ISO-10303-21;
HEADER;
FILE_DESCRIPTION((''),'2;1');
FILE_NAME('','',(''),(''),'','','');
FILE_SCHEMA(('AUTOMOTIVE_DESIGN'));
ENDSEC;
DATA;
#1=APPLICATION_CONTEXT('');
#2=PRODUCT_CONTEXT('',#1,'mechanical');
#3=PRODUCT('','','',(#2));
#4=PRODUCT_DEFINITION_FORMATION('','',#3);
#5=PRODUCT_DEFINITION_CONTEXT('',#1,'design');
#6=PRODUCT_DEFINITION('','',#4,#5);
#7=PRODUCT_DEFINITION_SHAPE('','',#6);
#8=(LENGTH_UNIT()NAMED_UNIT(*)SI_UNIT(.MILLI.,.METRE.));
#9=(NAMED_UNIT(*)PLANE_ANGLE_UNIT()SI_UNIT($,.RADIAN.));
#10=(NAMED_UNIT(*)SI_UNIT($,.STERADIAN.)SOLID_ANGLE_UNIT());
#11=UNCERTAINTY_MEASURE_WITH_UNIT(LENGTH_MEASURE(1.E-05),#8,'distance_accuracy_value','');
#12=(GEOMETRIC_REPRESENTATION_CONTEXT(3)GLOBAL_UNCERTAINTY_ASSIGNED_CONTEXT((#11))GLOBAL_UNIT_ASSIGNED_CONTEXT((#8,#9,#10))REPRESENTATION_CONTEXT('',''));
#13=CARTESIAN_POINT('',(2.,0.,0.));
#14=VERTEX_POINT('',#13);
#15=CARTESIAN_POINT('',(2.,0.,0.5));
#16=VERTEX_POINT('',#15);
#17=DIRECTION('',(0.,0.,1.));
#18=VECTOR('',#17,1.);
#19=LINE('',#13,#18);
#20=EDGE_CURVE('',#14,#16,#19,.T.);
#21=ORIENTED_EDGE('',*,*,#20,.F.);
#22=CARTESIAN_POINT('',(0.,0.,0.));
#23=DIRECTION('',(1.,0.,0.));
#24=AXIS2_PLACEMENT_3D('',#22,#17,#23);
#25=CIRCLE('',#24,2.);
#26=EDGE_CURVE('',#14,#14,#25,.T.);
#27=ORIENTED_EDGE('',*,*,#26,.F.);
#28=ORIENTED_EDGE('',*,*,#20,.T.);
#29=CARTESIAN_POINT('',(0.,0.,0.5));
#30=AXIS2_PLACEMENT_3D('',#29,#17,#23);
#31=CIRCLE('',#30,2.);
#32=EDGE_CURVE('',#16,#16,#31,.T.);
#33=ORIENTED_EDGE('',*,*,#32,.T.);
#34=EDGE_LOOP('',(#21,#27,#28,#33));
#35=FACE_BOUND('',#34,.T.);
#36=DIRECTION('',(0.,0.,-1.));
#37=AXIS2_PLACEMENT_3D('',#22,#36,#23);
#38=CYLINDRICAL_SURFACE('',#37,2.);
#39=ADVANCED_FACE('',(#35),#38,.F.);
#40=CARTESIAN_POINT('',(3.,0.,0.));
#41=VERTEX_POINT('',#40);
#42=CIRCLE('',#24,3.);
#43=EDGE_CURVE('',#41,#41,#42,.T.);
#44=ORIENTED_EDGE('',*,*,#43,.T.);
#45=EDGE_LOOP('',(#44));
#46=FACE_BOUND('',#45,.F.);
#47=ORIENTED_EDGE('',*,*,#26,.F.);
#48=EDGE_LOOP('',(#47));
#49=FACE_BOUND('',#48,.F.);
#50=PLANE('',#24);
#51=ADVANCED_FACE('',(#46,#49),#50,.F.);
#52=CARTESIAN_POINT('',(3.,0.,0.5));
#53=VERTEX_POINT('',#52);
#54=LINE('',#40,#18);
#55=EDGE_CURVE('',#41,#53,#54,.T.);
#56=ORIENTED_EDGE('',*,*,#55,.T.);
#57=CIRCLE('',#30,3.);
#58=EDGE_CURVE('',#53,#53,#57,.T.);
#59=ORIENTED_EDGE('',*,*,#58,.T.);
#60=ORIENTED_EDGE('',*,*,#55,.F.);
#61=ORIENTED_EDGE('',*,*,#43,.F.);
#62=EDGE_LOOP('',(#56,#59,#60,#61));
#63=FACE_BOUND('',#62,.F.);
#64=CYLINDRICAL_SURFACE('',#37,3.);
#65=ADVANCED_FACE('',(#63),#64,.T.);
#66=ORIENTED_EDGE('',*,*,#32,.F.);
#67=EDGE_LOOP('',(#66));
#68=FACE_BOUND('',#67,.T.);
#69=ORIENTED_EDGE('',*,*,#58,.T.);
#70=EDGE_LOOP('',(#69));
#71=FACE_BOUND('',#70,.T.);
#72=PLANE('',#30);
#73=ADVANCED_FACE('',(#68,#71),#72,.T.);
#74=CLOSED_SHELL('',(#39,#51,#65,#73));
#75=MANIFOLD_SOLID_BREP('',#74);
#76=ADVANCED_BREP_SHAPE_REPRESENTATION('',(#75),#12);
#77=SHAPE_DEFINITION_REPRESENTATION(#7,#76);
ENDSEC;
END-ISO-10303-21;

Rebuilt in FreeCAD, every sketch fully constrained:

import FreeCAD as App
import Part
import Sketcher
from FreeCAD import Vector
Q = App.Units.Quantity

doc = App.newDocument("Part")
body = doc.addObject("PartDesign::Body", "Body")

# Sketch on XY plane
sketch1 = body.newObject("Sketcher::SketchObject", "Sketch")
sketch1.AttachmentSupport = (doc.getObject("XY_Plane"), [""])
sketch1.MapMode = "FlatFace"
sketch1.addGeometry([
    Part.Circle(Vector(0, 0, 0), Vector(0, 0, 1), 3),
    Part.Circle(Vector(0, 0, 0), Vector(0, 0, 1), 2),
], False)
sketch1.addConstraint([
    Sketcher.Constraint("Coincident", 0, 3, -1, 1),
    Sketcher.Constraint("Coincident", 1, 3, -1, 1),
    Sketcher.Constraint("Diameter", 0, Q("6 mm")),
    Sketcher.Constraint("Diameter", 1, Q("4 mm")),
])
pad1 = body.newObject("PartDesign::Pad", "Pad")
pad1.Profile = sketch1
pad1.Length = 0.5

doc.recompute()
